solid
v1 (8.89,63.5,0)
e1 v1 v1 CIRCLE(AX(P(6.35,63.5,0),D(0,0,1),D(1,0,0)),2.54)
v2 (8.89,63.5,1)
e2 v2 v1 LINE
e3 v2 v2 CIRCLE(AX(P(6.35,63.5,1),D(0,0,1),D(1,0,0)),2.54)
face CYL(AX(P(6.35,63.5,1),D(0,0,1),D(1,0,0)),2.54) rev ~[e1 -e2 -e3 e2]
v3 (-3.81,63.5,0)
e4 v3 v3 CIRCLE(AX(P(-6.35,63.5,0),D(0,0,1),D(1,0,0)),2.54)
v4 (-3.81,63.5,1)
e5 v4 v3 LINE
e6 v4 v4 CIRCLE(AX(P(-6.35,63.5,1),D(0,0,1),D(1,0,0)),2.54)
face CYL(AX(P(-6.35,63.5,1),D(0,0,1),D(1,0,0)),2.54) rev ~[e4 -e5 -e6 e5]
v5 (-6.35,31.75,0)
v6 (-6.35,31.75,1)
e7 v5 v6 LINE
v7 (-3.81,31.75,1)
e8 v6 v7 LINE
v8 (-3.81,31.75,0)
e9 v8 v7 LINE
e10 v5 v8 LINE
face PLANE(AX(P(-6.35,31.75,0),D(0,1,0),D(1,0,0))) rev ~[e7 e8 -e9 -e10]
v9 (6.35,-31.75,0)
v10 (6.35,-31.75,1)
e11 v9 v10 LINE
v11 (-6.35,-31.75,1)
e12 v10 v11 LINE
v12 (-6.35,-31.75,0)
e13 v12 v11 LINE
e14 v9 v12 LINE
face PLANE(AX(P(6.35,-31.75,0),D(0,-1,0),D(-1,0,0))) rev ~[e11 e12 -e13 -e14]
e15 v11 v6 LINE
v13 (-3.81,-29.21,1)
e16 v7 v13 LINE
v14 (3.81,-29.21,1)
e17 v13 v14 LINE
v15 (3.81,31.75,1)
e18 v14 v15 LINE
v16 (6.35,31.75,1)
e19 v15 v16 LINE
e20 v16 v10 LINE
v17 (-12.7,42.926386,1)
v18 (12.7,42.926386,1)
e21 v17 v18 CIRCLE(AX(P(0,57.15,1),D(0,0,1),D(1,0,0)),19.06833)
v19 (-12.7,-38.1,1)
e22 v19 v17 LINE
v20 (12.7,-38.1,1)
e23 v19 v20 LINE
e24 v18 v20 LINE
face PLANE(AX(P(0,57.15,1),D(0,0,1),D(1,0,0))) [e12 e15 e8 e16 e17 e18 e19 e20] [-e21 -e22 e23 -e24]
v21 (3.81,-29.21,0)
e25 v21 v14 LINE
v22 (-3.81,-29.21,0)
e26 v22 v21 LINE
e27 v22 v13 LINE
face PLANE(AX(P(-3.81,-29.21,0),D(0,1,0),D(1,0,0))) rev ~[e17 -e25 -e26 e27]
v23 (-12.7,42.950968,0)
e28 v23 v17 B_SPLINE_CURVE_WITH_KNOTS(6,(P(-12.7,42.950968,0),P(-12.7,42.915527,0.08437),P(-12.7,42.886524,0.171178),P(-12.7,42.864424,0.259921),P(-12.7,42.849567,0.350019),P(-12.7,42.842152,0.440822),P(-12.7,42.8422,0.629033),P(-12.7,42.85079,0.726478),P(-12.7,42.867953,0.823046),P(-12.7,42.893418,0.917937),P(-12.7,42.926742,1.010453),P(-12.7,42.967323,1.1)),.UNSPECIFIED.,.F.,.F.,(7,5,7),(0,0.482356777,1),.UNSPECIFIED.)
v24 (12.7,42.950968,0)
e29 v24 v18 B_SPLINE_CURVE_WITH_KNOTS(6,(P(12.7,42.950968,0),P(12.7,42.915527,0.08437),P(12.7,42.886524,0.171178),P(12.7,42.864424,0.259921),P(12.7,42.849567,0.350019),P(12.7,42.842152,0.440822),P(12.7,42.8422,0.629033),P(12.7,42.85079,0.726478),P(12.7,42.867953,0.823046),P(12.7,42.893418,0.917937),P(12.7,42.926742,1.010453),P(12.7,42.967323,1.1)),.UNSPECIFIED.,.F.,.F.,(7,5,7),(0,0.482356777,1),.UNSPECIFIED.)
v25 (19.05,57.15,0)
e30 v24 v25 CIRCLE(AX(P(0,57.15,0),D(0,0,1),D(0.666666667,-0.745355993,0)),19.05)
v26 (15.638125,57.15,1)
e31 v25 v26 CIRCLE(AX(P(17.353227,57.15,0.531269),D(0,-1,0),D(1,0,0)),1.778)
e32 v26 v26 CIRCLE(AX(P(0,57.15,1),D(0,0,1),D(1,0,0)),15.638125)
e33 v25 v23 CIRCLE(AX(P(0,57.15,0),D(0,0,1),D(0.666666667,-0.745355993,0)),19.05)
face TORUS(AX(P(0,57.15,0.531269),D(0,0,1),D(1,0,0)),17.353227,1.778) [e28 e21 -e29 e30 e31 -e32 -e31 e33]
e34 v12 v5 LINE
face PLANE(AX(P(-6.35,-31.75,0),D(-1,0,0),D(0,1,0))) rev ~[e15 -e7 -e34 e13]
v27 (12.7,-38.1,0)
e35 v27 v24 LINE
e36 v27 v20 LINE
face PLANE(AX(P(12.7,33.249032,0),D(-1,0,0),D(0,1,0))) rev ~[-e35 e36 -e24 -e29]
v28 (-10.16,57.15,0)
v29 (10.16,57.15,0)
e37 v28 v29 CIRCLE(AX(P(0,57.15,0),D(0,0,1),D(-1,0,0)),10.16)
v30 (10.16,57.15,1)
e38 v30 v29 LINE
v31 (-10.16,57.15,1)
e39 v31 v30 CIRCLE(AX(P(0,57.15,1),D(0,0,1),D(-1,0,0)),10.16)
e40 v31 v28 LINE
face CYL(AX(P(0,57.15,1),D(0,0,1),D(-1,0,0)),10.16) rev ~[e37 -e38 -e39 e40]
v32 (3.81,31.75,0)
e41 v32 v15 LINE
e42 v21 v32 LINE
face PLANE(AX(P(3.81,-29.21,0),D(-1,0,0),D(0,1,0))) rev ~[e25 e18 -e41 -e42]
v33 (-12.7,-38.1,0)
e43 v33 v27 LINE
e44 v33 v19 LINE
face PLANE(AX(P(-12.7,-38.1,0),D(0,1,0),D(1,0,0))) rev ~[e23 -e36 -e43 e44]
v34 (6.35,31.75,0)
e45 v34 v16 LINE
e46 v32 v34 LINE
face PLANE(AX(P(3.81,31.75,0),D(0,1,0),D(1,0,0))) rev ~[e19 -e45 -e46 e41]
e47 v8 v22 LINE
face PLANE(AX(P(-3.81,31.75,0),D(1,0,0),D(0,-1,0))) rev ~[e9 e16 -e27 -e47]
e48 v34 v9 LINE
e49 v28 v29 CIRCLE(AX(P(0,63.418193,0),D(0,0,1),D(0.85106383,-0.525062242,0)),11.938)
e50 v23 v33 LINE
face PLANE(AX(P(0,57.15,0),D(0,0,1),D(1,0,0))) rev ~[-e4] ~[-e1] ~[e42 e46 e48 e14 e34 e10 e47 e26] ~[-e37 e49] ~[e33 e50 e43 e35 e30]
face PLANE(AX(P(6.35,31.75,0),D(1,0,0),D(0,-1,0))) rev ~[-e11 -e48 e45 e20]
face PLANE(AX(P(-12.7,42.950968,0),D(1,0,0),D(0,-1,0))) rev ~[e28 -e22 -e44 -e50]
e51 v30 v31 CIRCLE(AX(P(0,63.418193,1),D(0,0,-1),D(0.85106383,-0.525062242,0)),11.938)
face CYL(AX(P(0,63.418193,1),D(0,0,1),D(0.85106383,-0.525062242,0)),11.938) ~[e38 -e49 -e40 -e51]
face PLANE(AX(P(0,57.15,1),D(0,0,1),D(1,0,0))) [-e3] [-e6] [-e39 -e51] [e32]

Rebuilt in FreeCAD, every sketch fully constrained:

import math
import FreeCAD as App
import Part
import Sketcher

V = App.Vector
Q = App.Units.Quantity


def add_polygon(sketch, points):
    """Adds a closed chain of lines whose ends are joined by coincident constraints."""
    first, n = sketch.GeometryCount, len(points)
    for a, b in zip(points, points[1:] + points[:1]):
        sketch.addGeometry(Part.LineSegment(App.Vector(*a, 0), App.Vector(*b, 0)), False)
    for i in range(n):
        sketch.addConstraint(Sketcher.Constraint("Coincident", first + i, 2, first + (i + 1) % n, 1))

doc = App.newDocument("Part")
params = doc.addObject("Spreadsheet::Sheet", "Params")
for row, (alias, value) in enumerate([
    ("sketch1_width", "1 in"),
    ("sketch1_height", "3 in"),
    ("sketch1_width2", "0.5 in"),
    ("sketch1_width3", "0.1 in"),
    ("sketch1_height2", "2.5 in"),
    ("pad1_length", "1 mm"),
    ("sketch2_width", "1 in"),
    ("sketch2_radius", "0.75 in"),
    ("pad2_length", "1 mm"),
    ("sketch3_radius", "0.07 in"),
    ("sketch4_diameter", "1.5 in"),
    ("sketch5_diameter", "0.2 in"),
    ("sketch6_radius", "0.4 in"),
    ("sketch6_radius2", "0.47 in"),
], start=1):
    params.set(f"A{row}", alias)
    params.set(f"B{row}", "=" + value)
    params.setAlias(f"B{row}", alias)

body = doc.addObject("PartDesign::Body", "Body")

sketch1 = body.newObject("Sketcher::SketchObject", "Sketch")
sketch1.AttachmentSupport = (doc.getObject("XY_Plane"), [""])
sketch1.MapMode = "FlatFace"
add_polygon(sketch1, [(-12.7, 38.1), (-12.7, -38.1), (12.7, -38.1), (12.7, 38.1)])
add_polygon(sketch1, [(6.3, -31.8), (-6.3, -31.8), (-6.3, 31.8), (-3.8, 31.8), (-3.8, -29.2), (3.8, -29.2), (3.8, 31.8), (6.3, 31.8)])
sketch1.addConstraint([
    Sketcher.Constraint("Vertical", 0),
    Sketcher.Constraint("Horizontal", 1),
    Sketcher.Constraint("Vertical", 2),
    Sketcher.Constraint("Horizontal", 3),
    Sketcher.Constraint("Horizontal", 4),
    Sketcher.Constraint("Vertical", 5),
    Sketcher.Constraint("Horizontal", 6),
    Sketcher.Constraint("Vertical", 7),
    Sketcher.Constraint("Horizontal", 8),
    Sketcher.Constraint("Vertical", 9),
    Sketcher.Constraint("Horizontal", 10),
    Sketcher.Constraint("Vertical", 11),
    Sketcher.Constraint("Symmetric", 0, 2, 2, 2, -1, 1),
    Sketcher.Constraint("Symmetric", 4, 2, 10, 2, -1, 1),
    Sketcher.Constraint("Symmetric", 6, 2, 9, 2, -2),
    Sketcher.Constraint("DistanceX", 1, 1, 1, 2, Q("1 in")),
    Sketcher.Constraint("DistanceY", 0, 2, 0, 1, Q("3 in")),
    Sketcher.Constraint("DistanceX", 4, 2, 4, 1, Q("0.5 in")),
    Sketcher.Constraint("DistanceX", 6, 1, 6, 2, Q("0.1 in")),
    Sketcher.Constraint("DistanceY", 5, 1, 5, 2, Q("2.5 in")),
    Sketcher.Constraint("DistanceY", 7, 2, 7, 1, Q("2.4 in")),
])
sketch1.setExpression("Constraints[27]", "Params.sketch1_width")
sketch1.setExpression("Constraints[28]", "Params.sketch1_height")
sketch1.setExpression("Constraints[29]", "Params.sketch1_width2")
sketch1.setExpression("Constraints[30]", "Params.sketch1_width3")
sketch1.setExpression("Constraints[31]", "Params.sketch1_height2")
pad1 = body.newObject("PartDesign::Pad", "Pad")
pad1.Profile = sketch1
pad1.setExpression("Length", "Params.pad1_length")

sketch2 = body.newObject("Sketcher::SketchObject", "Sketch001")
sketch2.AttachmentSupport = (doc.getObject("XY_Plane"), [""])
sketch2.MapMode = "FlatFace"
sketch2.addGeometry([
    Part.ArcOfCircle(Part.Circle(V(0, 57, 0), V(0, 0, 1), 19), math.radians(-48), math.radians(228)),
    Part.LineSegment(V(-13, 43, 0), V(-13, 33, 0)),
    Part.LineSegment(V(-13, 33, 0), V(13, 33, 0)),
    Part.LineSegment(V(13, 33, 0), V(13, 43, 0)),
], False)
sketch2.addConstraint([
    Sketcher.Constraint("Coincident", 0, 2, 1, 1),
    Sketcher.Constraint("Coincident", 1, 2, 2, 1),
    Sketcher.Constraint("Coincident", 2, 2, 3, 1),
    Sketcher.Constraint("Coincident", 3, 2, 0, 1),
    Sketcher.Constraint("Vertical", 1),
    Sketcher.Constraint("Horizontal", 2),
    Sketcher.Constraint("Vertical", 3),
    Sketcher.Constraint("Symmetric", 0, 2, 3, 2, -2),
    Sketcher.Constraint("DistanceX", 2, 1, 2, 2, Q("1 in")),
    Sketcher.Constraint("Radius", 0, Q("0.75 in")),
    Sketcher.Constraint("DistanceY", -1, 1, 0, 3, Q("2.25 in")),
    Sketcher.Constraint("DistanceY", 1, 2, 1, 1, Q("9.701937 mm")),
])
sketch2.setExpression("Constraints[8]", "Params.sketch2_width")
sketch2.setExpression("Constraints[9]", "Params.sketch2_radius")
pad2 = body.newObject("PartDesign::Pad", "Pad001")
pad2.Profile = sketch2
pad2.setExpression("Length", "Params.pad2_length")

sketch3 = body.newObject("Sketcher::SketchObject", "Sketch002")
sketch3.AttachmentSupport = (doc.getObject("XZ_Plane"), [""])
sketch3.MapMode = "FlatFace"
sketch3.AttachmentOffset = App.Placement(V(0, 0, -2.25 * 25.4), App.Rotation())
sketch3.addGeometry([
    Part.LineSegment(V(-19.1, 0, 0), V(-15.7, 0, 0)),
    Part.ArcOfCircle(Part.Circle(V(-17.4, 0.5, 0), V(0, 0, 1), 1.8), math.radians(-17), math.radians(197)),
], False)
sketch3.addConstraint([
    Sketcher.Constraint("Coincident", 0, 1, 1, 2),
    Sketcher.Constraint("Coincident", 1, 1, 0, 2),
    Sketcher.Constraint("Horizontal", 0),
    Sketcher.Constraint("PointOnObject", 0, 1, -1),
    Sketcher.Constraint("Radius", 1, Q("0.07 in")),
    Sketcher.Constraint("DistanceX", 0, 1, -1, 1, Q("0.75 in")),
    Sketcher.Constraint("DistanceX", 0, 1, 0, 2, Q("3.393545 mm")),
])
sketch3.setExpression("Constraints[4]", "Params.sketch3_radius")

sketch4 = body.newObject("Sketcher::SketchObject", "Sketch003")
sketch4.AttachmentSupport = (doc.getObject("XY_Plane"), [""])
sketch4.MapMode = "FlatFace"
sketch4.AttachmentOffset = App.Placement(V(0, 0, 1), App.Rotation())
sketch4.addGeometry(Part.Circle(V(0, 57, 0), V(0, 0, 1), 19), False)
sketch4.addConstraint([
    Sketcher.Constraint("PointOnObject", 0, 3, -2),
    Sketcher.Constraint("Diameter", 0, Q("1.5 in")),
    Sketcher.Constraint("DistanceY", -1, 1, 0, 3, Q("2.25 in")),
])
sketch4.setExpression("Constraints[1]", "Params.sketch4_diameter")
doc.recompute()

additivepipe = body.newObject("PartDesign::AdditivePipe", "AdditivePipe")
additivepipe.Profile = sketch3
additivepipe.Spine = (sketch4, ["Edge1"])

sketch5 = body.newObject("Sketcher::SketchObject", "Sketch004")
sketch5.AttachmentSupport = (doc.getObject("XY_Plane"), [""])
sketch5.MapMode = "FlatFace"
sketch5.AttachmentOffset = App.Placement(V(0, 0, 1), App.Rotation())
sketch5.addGeometry([
    Part.Circle(V(-6.3, 63.5, 0), V(0, 0, 1), 2.5),
    Part.Circle(V(6.3, 63.5, 0), V(0, 0, 1), 2.5),
], False)
sketch5.addConstraint([
    Sketcher.Constraint("Equal", 0, 1),
    Sketcher.Constraint("Symmetric", 0, 3, 1, 3, -2),
    Sketcher.Constraint("Diameter", 0, Q("0.2 in")),
    Sketcher.Constraint("DistanceY", -1, 1, 0, 3, Q("2.5 in")),
    Sketcher.Constraint("DistanceX", 0, 3, 1, 3, Q("0.5 in")),
])
sketch5.setExpression("Constraints[2]", "Params.sketch5_diameter")
pocket1 = body.newObject("PartDesign::Pocket", "Pocket")
pocket1.Profile = sketch5
pocket1.Type = "ThroughAll"

sketch6 = body.newObject("Sketcher::SketchObject", "Sketch005")
sketch6.AttachmentSupport = (doc.getObject("XY_Plane"), [""])
sketch6.MapMode = "FlatFace"
sketch6.AttachmentOffset = App.Placement(V(0, 0, 1), App.Rotation())
sketch6.addGeometry([
    Part.ArcOfCircle(Part.Circle(V(0, 63, 0), V(0, 0, 1), 12), math.radians(-148), math.radians(-32)),
    Part.ArcOfCircle(Part.Circle(V(0, 57, 0), V(0, 0, 1), 10), math.radians(180), math.radians(360)),
], False)
sketch6.addConstraint([
    Sketcher.Constraint("Coincident", 0, 1, 1, 1),
    Sketcher.Constraint("Coincident", 1, 2, 0, 2),
    Sketcher.Constraint("Symmetric", 0, 1, 1, 2, -2),
    Sketcher.Constraint("Horizontal", 1, 3, 0, 1),
    Sketcher.Constraint("Radius", 1, Q("0.4 in")),
    Sketcher.Constraint("Radius", 0, Q("0.47 in")),
    Sketcher.Constraint("DistanceY", -1, 1, 1, 3, Q("2.25 in")),
])
sketch6.setExpression("Constraints[4]", "Params.sketch6_radius")
sketch6.setExpression("Constraints[5]", "Params.sketch6_radius2")
pocket2 = body.newObject("PartDesign::Pocket", "Pocket001")
pocket2.Profile = sketch6
pocket2.Type = "ThroughAll"

doc.recompute()
